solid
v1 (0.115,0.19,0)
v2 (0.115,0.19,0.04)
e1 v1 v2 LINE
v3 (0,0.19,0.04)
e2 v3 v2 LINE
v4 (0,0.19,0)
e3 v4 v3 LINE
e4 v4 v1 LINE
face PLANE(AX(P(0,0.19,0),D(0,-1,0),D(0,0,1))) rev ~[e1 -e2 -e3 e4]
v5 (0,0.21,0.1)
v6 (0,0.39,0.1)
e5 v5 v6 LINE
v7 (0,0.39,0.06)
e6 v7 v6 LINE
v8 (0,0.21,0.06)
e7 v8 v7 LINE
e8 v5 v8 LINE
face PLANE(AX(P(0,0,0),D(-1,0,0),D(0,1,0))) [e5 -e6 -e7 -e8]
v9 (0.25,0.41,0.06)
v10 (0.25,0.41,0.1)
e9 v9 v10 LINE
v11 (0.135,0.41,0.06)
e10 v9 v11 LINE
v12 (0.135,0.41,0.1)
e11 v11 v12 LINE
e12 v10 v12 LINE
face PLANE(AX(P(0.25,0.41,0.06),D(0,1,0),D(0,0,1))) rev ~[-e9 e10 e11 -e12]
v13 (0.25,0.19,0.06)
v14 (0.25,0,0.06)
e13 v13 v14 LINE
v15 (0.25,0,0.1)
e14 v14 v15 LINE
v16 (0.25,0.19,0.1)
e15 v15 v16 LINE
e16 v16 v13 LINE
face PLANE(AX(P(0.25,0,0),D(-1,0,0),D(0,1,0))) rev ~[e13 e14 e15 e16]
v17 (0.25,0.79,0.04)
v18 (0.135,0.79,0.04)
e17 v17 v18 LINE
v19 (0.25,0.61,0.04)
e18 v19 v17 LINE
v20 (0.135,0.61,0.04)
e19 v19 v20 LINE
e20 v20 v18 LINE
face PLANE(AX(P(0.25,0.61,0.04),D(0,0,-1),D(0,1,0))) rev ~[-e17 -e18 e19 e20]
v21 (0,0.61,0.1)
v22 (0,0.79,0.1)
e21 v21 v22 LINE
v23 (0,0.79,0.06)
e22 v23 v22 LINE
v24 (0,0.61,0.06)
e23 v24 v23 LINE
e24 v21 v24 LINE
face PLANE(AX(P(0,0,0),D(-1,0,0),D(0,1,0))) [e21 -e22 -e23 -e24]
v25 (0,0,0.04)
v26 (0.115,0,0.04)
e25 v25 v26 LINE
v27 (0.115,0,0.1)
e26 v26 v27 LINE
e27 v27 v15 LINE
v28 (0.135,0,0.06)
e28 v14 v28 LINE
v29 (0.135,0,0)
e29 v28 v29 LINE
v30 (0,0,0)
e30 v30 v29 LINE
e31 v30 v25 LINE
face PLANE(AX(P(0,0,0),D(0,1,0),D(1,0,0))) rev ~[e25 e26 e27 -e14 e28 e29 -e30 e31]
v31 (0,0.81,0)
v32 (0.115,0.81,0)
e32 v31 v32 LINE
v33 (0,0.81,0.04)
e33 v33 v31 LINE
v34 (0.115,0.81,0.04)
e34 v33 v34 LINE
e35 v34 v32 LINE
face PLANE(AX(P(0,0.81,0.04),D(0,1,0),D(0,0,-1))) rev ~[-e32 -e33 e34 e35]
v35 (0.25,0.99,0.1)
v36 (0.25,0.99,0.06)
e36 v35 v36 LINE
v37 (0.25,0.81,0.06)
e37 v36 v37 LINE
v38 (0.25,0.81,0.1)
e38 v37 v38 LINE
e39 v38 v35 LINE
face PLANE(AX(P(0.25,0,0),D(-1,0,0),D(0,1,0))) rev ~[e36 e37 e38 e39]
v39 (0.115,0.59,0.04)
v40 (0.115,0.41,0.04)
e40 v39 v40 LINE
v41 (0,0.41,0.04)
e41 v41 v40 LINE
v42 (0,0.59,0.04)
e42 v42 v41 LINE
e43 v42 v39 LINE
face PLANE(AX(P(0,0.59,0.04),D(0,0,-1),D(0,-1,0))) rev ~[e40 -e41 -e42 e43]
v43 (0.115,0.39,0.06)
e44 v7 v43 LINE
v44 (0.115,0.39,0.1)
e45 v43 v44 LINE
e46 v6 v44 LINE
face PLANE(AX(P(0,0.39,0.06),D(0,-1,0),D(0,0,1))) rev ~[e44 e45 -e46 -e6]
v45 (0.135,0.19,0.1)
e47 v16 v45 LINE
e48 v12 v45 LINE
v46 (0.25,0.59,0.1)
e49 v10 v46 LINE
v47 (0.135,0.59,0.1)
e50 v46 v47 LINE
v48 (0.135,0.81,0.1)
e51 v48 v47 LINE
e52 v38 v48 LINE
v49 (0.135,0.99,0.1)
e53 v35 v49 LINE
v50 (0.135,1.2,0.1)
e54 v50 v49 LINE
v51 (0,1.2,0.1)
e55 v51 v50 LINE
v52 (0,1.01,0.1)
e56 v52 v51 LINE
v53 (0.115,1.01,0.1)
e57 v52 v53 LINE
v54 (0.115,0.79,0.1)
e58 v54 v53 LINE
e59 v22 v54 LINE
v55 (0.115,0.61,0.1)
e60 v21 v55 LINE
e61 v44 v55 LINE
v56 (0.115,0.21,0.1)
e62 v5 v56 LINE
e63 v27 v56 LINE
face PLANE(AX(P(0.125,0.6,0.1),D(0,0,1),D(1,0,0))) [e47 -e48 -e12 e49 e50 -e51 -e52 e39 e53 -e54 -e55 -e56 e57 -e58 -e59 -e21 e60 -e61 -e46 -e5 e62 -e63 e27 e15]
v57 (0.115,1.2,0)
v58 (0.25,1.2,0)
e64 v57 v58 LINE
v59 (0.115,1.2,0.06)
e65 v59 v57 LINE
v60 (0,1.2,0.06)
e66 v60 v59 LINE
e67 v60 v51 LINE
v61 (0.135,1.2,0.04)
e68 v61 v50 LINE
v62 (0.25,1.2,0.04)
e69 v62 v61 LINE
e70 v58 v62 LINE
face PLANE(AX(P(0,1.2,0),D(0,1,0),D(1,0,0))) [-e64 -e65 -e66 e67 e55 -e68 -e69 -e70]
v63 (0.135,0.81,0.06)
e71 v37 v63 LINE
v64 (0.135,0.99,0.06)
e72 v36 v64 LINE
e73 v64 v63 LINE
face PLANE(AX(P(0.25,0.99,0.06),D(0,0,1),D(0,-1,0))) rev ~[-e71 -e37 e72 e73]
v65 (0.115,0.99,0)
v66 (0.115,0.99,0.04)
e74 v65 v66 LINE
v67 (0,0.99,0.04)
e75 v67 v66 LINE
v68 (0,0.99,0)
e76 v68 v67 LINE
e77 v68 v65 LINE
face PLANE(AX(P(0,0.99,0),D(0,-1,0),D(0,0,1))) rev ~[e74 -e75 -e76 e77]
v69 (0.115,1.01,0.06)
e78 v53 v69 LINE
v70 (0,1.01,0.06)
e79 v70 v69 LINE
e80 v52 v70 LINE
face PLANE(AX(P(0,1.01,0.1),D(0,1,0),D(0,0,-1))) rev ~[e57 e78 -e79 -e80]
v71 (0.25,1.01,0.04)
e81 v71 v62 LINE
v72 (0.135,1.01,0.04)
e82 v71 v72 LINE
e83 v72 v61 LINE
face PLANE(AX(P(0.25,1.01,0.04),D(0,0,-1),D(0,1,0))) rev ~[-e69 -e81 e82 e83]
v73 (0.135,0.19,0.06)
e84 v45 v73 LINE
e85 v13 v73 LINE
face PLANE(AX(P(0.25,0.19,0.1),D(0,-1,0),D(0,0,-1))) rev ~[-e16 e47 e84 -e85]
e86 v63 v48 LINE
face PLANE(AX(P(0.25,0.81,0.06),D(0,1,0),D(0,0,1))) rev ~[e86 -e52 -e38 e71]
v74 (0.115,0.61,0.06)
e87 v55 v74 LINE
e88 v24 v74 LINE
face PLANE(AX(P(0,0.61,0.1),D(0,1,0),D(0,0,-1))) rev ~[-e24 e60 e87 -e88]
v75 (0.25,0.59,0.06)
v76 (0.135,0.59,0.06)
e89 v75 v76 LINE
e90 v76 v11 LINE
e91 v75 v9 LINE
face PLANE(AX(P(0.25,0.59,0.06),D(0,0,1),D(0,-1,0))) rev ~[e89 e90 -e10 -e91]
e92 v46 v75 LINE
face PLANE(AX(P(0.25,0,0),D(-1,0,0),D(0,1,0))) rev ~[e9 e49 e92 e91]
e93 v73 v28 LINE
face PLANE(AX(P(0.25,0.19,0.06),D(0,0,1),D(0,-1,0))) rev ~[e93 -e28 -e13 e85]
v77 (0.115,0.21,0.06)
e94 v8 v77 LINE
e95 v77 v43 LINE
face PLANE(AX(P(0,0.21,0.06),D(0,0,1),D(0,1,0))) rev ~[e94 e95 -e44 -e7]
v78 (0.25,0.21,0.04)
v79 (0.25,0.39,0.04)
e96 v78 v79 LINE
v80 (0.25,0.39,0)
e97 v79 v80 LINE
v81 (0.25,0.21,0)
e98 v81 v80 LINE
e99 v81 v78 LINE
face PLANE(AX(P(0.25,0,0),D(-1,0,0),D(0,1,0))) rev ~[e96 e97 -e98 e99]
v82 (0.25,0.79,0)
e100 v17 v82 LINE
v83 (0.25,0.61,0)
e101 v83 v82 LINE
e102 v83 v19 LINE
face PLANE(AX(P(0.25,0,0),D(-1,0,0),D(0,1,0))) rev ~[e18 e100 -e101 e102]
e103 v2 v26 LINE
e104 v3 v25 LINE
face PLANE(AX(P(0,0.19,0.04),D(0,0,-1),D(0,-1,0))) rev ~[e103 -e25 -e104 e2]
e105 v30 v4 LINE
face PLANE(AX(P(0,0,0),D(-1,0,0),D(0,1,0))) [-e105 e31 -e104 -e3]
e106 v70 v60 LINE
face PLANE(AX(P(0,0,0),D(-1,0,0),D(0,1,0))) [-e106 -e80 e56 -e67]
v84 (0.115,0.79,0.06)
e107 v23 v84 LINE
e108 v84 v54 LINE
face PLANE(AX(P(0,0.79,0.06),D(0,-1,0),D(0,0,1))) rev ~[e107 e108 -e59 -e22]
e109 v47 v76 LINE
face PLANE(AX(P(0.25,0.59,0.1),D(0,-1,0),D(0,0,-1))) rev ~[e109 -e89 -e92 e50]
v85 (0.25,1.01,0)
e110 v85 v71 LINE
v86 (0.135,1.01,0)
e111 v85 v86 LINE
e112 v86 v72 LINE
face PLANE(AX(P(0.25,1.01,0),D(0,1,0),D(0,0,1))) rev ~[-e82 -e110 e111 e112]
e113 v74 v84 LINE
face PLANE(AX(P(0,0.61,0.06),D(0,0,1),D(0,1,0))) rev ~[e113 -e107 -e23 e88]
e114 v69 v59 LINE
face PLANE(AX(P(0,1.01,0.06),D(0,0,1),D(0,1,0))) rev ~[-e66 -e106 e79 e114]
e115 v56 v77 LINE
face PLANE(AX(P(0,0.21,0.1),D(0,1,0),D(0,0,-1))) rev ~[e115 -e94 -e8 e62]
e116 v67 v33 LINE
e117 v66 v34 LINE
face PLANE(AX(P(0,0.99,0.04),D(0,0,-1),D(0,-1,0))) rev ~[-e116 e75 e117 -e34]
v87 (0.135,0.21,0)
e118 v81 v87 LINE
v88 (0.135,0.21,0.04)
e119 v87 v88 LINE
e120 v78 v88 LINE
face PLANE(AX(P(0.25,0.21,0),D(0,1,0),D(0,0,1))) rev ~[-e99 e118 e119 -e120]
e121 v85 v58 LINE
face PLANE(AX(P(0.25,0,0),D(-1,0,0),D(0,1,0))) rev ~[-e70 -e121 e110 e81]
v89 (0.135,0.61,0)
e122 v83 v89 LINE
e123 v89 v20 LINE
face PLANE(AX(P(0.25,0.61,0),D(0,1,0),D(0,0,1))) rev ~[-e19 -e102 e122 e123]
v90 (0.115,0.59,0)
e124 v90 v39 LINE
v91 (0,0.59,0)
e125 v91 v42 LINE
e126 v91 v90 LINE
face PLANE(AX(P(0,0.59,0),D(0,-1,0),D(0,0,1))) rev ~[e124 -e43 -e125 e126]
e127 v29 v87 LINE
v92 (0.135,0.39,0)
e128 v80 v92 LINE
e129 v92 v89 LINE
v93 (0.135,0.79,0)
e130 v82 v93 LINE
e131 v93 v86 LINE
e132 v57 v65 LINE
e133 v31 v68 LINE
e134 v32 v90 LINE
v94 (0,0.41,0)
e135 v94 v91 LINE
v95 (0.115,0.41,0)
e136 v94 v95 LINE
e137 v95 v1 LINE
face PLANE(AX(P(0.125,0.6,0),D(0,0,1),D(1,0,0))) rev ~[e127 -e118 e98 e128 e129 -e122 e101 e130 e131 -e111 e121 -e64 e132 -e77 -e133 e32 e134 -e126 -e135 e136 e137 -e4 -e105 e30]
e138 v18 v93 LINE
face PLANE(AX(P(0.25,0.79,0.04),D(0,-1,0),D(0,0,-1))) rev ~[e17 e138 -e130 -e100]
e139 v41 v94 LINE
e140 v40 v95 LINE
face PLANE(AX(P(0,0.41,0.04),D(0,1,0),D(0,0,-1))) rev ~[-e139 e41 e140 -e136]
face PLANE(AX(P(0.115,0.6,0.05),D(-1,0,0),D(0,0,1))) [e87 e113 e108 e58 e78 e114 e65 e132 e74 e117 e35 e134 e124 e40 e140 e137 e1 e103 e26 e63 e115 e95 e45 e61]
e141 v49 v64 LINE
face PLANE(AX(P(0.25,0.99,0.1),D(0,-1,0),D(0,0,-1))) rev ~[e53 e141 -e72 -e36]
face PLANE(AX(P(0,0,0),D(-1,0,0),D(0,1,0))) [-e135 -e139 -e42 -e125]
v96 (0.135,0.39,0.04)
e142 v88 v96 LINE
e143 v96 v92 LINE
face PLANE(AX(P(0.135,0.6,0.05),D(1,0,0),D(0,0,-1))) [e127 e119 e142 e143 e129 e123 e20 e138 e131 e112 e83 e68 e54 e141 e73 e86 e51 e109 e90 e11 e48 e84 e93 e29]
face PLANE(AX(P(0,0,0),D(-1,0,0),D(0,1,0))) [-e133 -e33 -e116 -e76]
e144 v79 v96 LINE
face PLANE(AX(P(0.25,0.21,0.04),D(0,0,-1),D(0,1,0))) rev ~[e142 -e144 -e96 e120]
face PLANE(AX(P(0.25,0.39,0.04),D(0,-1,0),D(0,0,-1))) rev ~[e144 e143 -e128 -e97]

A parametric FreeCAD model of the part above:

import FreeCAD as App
import Part
import Sketcher
Q = App.Units.Quantity

doc = App.newDocument("Part")
body = doc.addObject("PartDesign::Body", "Body")

# Sketch on XY plane
sketch1 = doc.addObject("Sketcher::SketchObject", "Sketch")
body.addObject(sketch1)
sketch1.AttachmentSupport = (doc.XY_Plane, [""])
sketch1.MapMode = "FlatFace"
sketch1.addGeometry([
    Part.LineSegment(App.Vector(0, 1.2, 0), App.Vector(0, 0, 0)),
    Part.LineSegment(App.Vector(0, 0, 0), App.Vector(0.25, 0, 0)),
    Part.LineSegment(App.Vector(0.25, 0, 0), App.Vector(0.25, 1.2, 0)),
    Part.LineSegment(App.Vector(0.25, 1.2, 0), App.Vector(0, 1.2, 0)),
], False)
sketch1.addConstraint([
    Sketcher.Constraint("Coincident", 0, 2, 1, 1),
    Sketcher.Constraint("Coincident", 1, 2, 2, 1),
    Sketcher.Constraint("Coincident", 2, 2, 3, 1),
    Sketcher.Constraint("Coincident", 3, 2, 0, 1),
    Sketcher.Constraint("Vertical", 0),
    Sketcher.Constraint("Horizontal", 1),
    Sketcher.Constraint("Vertical", 2),
    Sketcher.Constraint("Horizontal", 3),
    Sketcher.Constraint("Coincident", 0, 2, -1, 1),
    Sketcher.Constraint("DistanceY", 0, 2, 0, 1, Q("1.2 mm")),
    Sketcher.Constraint("DistanceX", 1, 1, 1, 2, Q("0.25 mm")),
])
pad1 = doc.addObject("PartDesign::Pad", "Pad")
body.addObject(pad1)
pad1.Profile = sketch1
pad1.Length = 0.1

# Sketch on YZ plane
sketch2 = doc.addObject("Sketcher::SketchObject", "Sketch001")
body.addObject(sketch2)
sketch2.AttachmentSupport = (doc.YZ_Plane, [""])
sketch2.MapMode = "FlatFace"
sketch2.AttachmentOffset = App.Placement(App.Vector(0, 0, 0.25), App.Rotation())
sketch2.addGeometry([
    Part.LineSegment(App.Vector(1.2, 0.04, 0), App.Vector(1.2, 0.1, 0)),  # 0
    Part.LineSegment(App.Vector(1.2, 0.1, 0), App.Vector(0.99, 0.1, 0)),  # 1
    Part.LineSegment(App.Vector(0.99, 0.1, 0), App.Vector(0.99, 0.06, 0)),  # 2
    Part.LineSegment(App.Vector(0.99, 0.06, 0), App.Vector(0.81, 0.06, 0)),  # 3
    Part.LineSegment(App.Vector(0.81, 0.06, 0), App.Vector(0.81, 0.1, 0)),  # 4
    Part.LineSegment(App.Vector(0.81, 0.1, 0), App.Vector(0.59, 0.1, 0)),  # 5
    Part.LineSegment(App.Vector(0.59, 0.1, 0), App.Vector(0.59, 0.06, 0)),  # 6
    Part.LineSegment(App.Vector(0.59, 0.06, 0), App.Vector(0.41, 0.06, 0)),  # 7
    Part.LineSegment(App.Vector(0.41, 0.06, 0), App.Vector(0.41, 0.1, 0)),  # 8
    Part.LineSegment(App.Vector(0.41, 0.1, 0), App.Vector(0.19, 0.1, 0)),  # 9
    Part.LineSegment(App.Vector(0.19, 0.1, 0), App.Vector(0.19, 0.06, 0)),  # 10
    Part.LineSegment(App.Vector(0.19, 0.06, 0), App.Vector(0, 0.06, 0)),  # 11
    Part.LineSegment(App.Vector(0, 0.06, 0), App.Vector(0, 0, 0)),  # 12
    Part.LineSegment(App.Vector(0, 0, 0), App.Vector(0.21, 0, 0)),  # 13
    Part.LineSegment(App.Vector(0.21, 0, 0), App.Vector(0.21, 0.04, 0)),  # 14
    Part.LineSegment(App.Vector(0.21, 0.04, 0), App.Vector(0.39, 0.04, 0)),  # 15
    Part.LineSegment(App.Vector(0.39, 0.04, 0), App.Vector(0.39, 0, 0)),  # 16
    Part.LineSegment(App.Vector(0.39, 0, 0), App.Vector(0.61, 0, 0)),  # 17
    Part.LineSegment(App.Vector(0.61, 0, 0), App.Vector(0.61, 0.04, 0)),  # 18
    Part.LineSegment(App.Vector(0.61, 0.04, 0), App.Vector(0.79, 0.04, 0)),  # 19
    Part.LineSegment(App.Vector(0.79, 0.04, 0), App.Vector(0.79, 0, 0)),  # 20
    Part.LineSegment(App.Vector(0.79, 0, 0), App.Vector(1.01, 0, 0)),  # 21
    Part.LineSegment(App.Vector(1.01, 0, 0), App.Vector(1.01, 0.04, 0)),  # 22
    Part.LineSegment(App.Vector(1.01, 0.04, 0), App.Vector(1.2, 0.04, 0)),  # 23
], False)
sketch2.addConstraint([
    Sketcher.Constraint("Coincident", 0, 2, 1, 1),
    Sketcher.Constraint("Coincident", 1, 2, 2, 1),
    Sketcher.Constraint("Coincident", 2, 2, 3, 1),
    Sketcher.Constraint("Coincident", 3, 2, 4, 1),
    Sketcher.Constraint("Coincident", 4, 2, 5, 1),
    Sketcher.Constraint("Coincident", 5, 2, 6, 1),
    Sketcher.Constraint("Coincident", 6, 2, 7, 1),
    Sketcher.Constraint("Coincident", 7, 2, 8, 1),
    Sketcher.Constraint("Coincident", 8, 2, 9, 1),
    Sketcher.Constraint("Coincident", 9, 2, 10, 1),
    Sketcher.Constraint("Coincident", 10, 2, 11, 1),
    Sketcher.Constraint("Coincident", 11, 2, 12, 1),
    Sketcher.Constraint("Coincident", 12, 2, 13, 1),
    Sketcher.Constraint("Coincident", 13, 2, 14, 1),
    Sketcher.Constraint("Coincident", 14, 2, 15, 1),
    Sketcher.Constraint("Coincident", 15, 2, 16, 1),
    Sketcher.Constraint("Coincident", 16, 2, 17, 1),
    Sketcher.Constraint("Coincident", 17, 2, 18, 1),
    Sketcher.Constraint("Coincident", 18, 2, 19, 1),
    Sketcher.Constraint("Coincident", 19, 2, 20, 1),
    Sketcher.Constraint("Coincident", 20, 2, 21, 1),
    Sketcher.Constraint("Coincident", 21, 2, 22, 1),
    Sketcher.Constraint("Coincident", 22, 2, 23, 1),
    Sketcher.Constraint("Coincident", 23, 2, 0, 1),
    Sketcher.Constraint("Vertical", 0),
    Sketcher.Constraint("Horizontal", 1),
    Sketcher.Constraint("Vertical", 2),
    Sketcher.Constraint("Horizontal", 3),
    Sketcher.Constraint("Vertical", 4),
    Sketcher.Constraint("Horizontal", 5),
    Sketcher.Constraint("Vertical", 6),
    Sketcher.Constraint("Horizontal", 7),
    Sketcher.Constraint("Vertical", 8),
    Sketcher.Constraint("Horizontal", 9),
    Sketcher.Constraint("Vertical", 10),
    Sketcher.Constraint("Horizontal", 11),
    Sketcher.Constraint("Vertical", 12),
    Sketcher.Constraint("Horizontal", 13),
    Sketcher.Constraint("Vertical", 14),
    Sketcher.Constraint("Horizontal", 15),
    Sketcher.Constraint("Vertical", 16),
    Sketcher.Constraint("Horizontal", 17),
    Sketcher.Constraint("Vertical", 18),
    Sketcher.Constraint("Horizontal", 19),
    Sketcher.Constraint("Vertical", 20),
    Sketcher.Constraint("Horizontal", 21),
    Sketcher.Constraint("Vertical", 22),
    Sketcher.Constraint("Horizontal", 23),
    Sketcher.Constraint("Coincident", 12, 2, -1, 1),
    Sketcher.Constraint("PointOnObject", 16, 2, -1),
    Sketcher.Constraint("PointOnObject", 20, 2, -1),
    Sketcher.Constraint("Horizontal", 1, 2, 4, 2),
    Sketcher.Constraint("Horizontal", 3, 2, 6, 2),
    Sketcher.Constraint("Horizontal", 5, 2, 8, 2),
    Sketcher.Constraint("Horizontal", 7, 2, 10, 2),
    Sketcher.Constraint("Horizontal", 15, 2, 18, 2),
    Sketcher.Constraint("Horizontal", 19, 2, 22, 2),
    Sketcher.Constraint("Equal", 3, 7),
    Sketcher.Constraint("Equal", 5, 9),
    Sketcher.Constraint("Equal", 1, 13),
    Sketcher.Constraint("Equal", 7, 15),
    Sketcher.Constraint("Equal", 9, 17),
    Sketcher.Constraint("Equal", 15, 19),
    Sketcher.Constraint("Equal", 17, 21),
    Sketcher.Constraint("Equal", 0, 12),
    Sketcher.Constraint("DistanceX", 1, 2, 1, 1, Q("0.21 mm")),
    Sketcher.Constraint("DistanceX", 3, 2, 3, 1, Q("0.18 mm")),
    Sketcher.Constraint("DistanceX", 5, 2, 5, 1, Q("0.22 mm")),
    Sketcher.Constraint("DistanceX", 11, 2, 11, 1, Q("0.19 mm")),
    Sketcher.Constraint("DistanceY", 0, 1, 0, 2, Q("0.06 mm")),
    Sketcher.Constraint("DistanceY", 2, 2, 2, 1, Q("0.04 mm")),
])
pocket1 = doc.addObject("PartDesign::Pocket", "Pocket")
body.addObject(pocket1)
pocket1.Profile = sketch2
pocket1.Length = 0.115

# Sketch on YZ plane
sketch3 = doc.addObject("Sketcher::SketchObject", "Sketch002")
body.addObject(sketch3)
sketch3.AttachmentSupport = (doc.YZ_Plane, [""])
sketch3.MapMode = "FlatFace"
sketch3.addGeometry([
    Part.LineSegment(App.Vector(1.01, 0.06, 0), App.Vector(1.2, 0.06, 0)),  # 0
    Part.LineSegment(App.Vector(1.2, 0.06, 0), App.Vector(1.2, 0, 0)),  # 1
    Part.LineSegment(App.Vector(1.2, 0, 0), App.Vector(0.99, 0, 0)),  # 2
    Part.LineSegment(App.Vector(0.99, 0, 0), App.Vector(0.99, 0.04, 0)),  # 3
    Part.LineSegment(App.Vector(0.99, 0.04, 0), App.Vector(0.81, 0.04, 0)),  # 4
    Part.LineSegment(App.Vector(0.81, 0.04, 0), App.Vector(0.81, 0, 0)),  # 5
    Part.LineSegment(App.Vector(0.81, 0, 0), App.Vector(0.59, 0, 0)),  # 6
    Part.LineSegment(App.Vector(0.59, 0, 0), App.Vector(0.59, 0.04, 0)),  # 7
    Part.LineSegment(App.Vector(0.59, 0.04, 0), App.Vector(0.41, 0.04, 0)),  # 8
    Part.LineSegment(App.Vector(0.41, 0.04, 0), App.Vector(0.41, 0, 0)),  # 9
    Part.LineSegment(App.Vector(0.41, 0, 0), App.Vector(0.19, 0, 0)),  # 10
    Part.LineSegment(App.Vector(0.19, 0, 0), App.Vector(0.19, 0.04, 0)),  # 11
    Part.LineSegment(App.Vector(0.19, 0.04, 0), App.Vector(0, 0.04, 0)),  # 12
    Part.LineSegment(App.Vector(0, 0.04, 0), App.Vector(0, 0.1, 0)),  # 13
    Part.LineSegment(App.Vector(0, 0.1, 0), App.Vector(0.21, 0.1, 0)),  # 14
    Part.LineSegment(App.Vector(0.21, 0.1, 0), App.Vector(0.21, 0.06, 0)),  # 15
    Part.LineSegment(App.Vector(0.21, 0.06, 0), App.Vector(0.39, 0.06, 0)),  # 16
    Part.LineSegment(App.Vector(0.39, 0.06, 0), App.Vector(0.39, 0.1, 0)),  # 17
    Part.LineSegment(App.Vector(0.39, 0.1, 0), App.Vector(0.61, 0.1, 0)),  # 18
    Part.LineSegment(App.Vector(0.61, 0.1, 0), App.Vector(0.61, 0.06, 0)),  # 19
    Part.LineSegment(App.Vector(0.61, 0.06, 0), App.Vector(0.79, 0.06, 0)),  # 20
    Part.LineSegment(App.Vector(0.79, 0.06, 0), App.Vector(0.79, 0.1, 0)),  # 21
    Part.LineSegment(App.Vector(0.79, 0.1, 0), App.Vector(1.01, 0.1, 0)),  # 22
    Part.LineSegment(App.Vector(1.01, 0.1, 0), App.Vector(1.01, 0.06, 0)),  # 23
], False)
sketch3.addConstraint([
    Sketcher.Constraint("Coincident", 0, 2, 1, 1),
    Sketcher.Constraint("Coincident", 1, 2, 2, 1),
    Sketcher.Constraint("Coincident", 2, 2, 3, 1),
    Sketcher.Constraint("Coincident", 3, 2, 4, 1),
    Sketcher.Constraint("Coincident", 4, 2, 5, 1),
    Sketcher.Constraint("Coincident", 5, 2, 6, 1),
    Sketcher.Constraint("Coincident", 6, 2, 7, 1),
    Sketcher.Constraint("Coincident", 7, 2, 8, 1),
    Sketcher.Constraint("Coincident", 8, 2, 9, 1),
    Sketcher.Constraint("Coincident", 9, 2, 10, 1),
    Sketcher.Constraint("Coincident", 10, 2, 11, 1),
    Sketcher.Constraint("Coincident", 11, 2, 12, 1),
    Sketcher.Constraint("Coincident", 12, 2, 13, 1),
    Sketcher.Constraint("Coincident", 13, 2, 14, 1),
    Sketcher.Constraint("Coincident", 14, 2, 15, 1),
    Sketcher.Constraint("Coincident", 15, 2, 16, 1),
    Sketcher.Constraint("Coincident", 16, 2, 17, 1),
    Sketcher.Constraint("Coincident", 17, 2, 18, 1),
    Sketcher.Constraint("Coincident", 18, 2, 19, 1),
    Sketcher.Constraint("Coincident", 19, 2, 20, 1),
    Sketcher.Constraint("Coincident", 20, 2, 21, 1),
    Sketcher.Constraint("Coincident", 21, 2, 22, 1),
    Sketcher.Constraint("Coincident", 22, 2, 23, 1),
    Sketcher.Constraint("Coincident", 23, 2, 0, 1),
    Sketcher.Constraint("Horizontal", 0),
    Sketcher.Constraint("Vertical", 1),
    Sketcher.Constraint("Horizontal", 2),
    Sketcher.Constraint("Vertical", 3),
    Sketcher.Constraint("Horizontal", 4),
    Sketcher.Constraint("Vertical", 5),
    Sketcher.Constraint("Horizontal", 6),
    Sketcher.Constraint("Vertical", 7),
    Sketcher.Constraint("Horizontal", 8),
    Sketcher.Constraint("Vertical", 9),
    Sketcher.Constraint("Horizontal", 10),
    Sketcher.Constraint("Vertical", 11),
    Sketcher.Constraint("Horizontal", 12),
    Sketcher.Constraint("Vertical", 13),
    Sketcher.Constraint("Horizontal", 14),
    Sketcher.Constraint("Vertical", 15),
    Sketcher.Constraint("Horizontal", 16),
    Sketcher.Constraint("Vertical", 17),
    Sketcher.Constraint("Horizontal", 18),
    Sketcher.Constraint("Vertical", 19),
    Sketcher.Constraint("Horizontal", 20),
    Sketcher.Constraint("Vertical", 21),
    Sketcher.Constraint("Horizontal", 22),
    Sketcher.Constraint("Vertical", 23),
    Sketcher.Constraint("PointOnObject", 1, 2, -1),
    Sketcher.Constraint("PointOnObject", 5, 2, -1),
    Sketcher.Constraint("PointOnObject", 9, 2, -1),
    Sketcher.Constraint("PointOnObject", 12, 2, -2),
    Sketcher.Constraint("Horizontal", 4, 2, 7, 2),
    Sketcher.Constraint("Horizontal", 8, 2, 11, 2),
    Sketcher.Constraint("Horizontal", 0, 2, 15, 2),
    Sketcher.Constraint("Horizontal", 14, 2, 17, 2),
    Sketcher.Constraint("Horizontal", 16, 2, 19, 2),
    Sketcher.Constraint("Horizontal", 18, 2, 21, 2),
    Sketcher.Constraint("Equal", 4, 8),
    Sketcher.Constraint("Equal", 6, 10),
    Sketcher.Constraint("Equal", 0, 12),
    Sketcher.Constraint("Equal", 2, 14),
    Sketcher.Constraint("Equal", 8, 16),
    Sketcher.Constraint("Equal", 10, 18),
    Sketcher.Constraint("Equal", 16, 20),
    Sketcher.Constraint("Equal", 1, 13),
    Sketcher.Constraint("DistanceX", 0, 1, 0, 2, Q("0.19 mm")),
    Sketcher.Constraint("DistanceX", 2, 2, 2, 1, Q("0.21 mm")),
    Sketcher.Constraint("DistanceX", 4, 2, 4, 1, Q("0.18 mm")),
    Sketcher.Constraint("DistanceX", 6, 2, 6, 1, Q("0.22 mm")),
    Sketcher.Constraint("DistanceY", 1, 2, 1, 1, Q("0.06 mm")),
    Sketcher.Constraint("DistanceY", 3, 1, 3, 2, Q("0.04 mm")),
])
pocket2 = doc.addObject("PartDesign::Pocket", "Pocket001")
body.addObject(pocket2)
pocket2.Profile = sketch3
pocket2.Length = 0.115
pocket2.Reversed = True

doc.recompute()
